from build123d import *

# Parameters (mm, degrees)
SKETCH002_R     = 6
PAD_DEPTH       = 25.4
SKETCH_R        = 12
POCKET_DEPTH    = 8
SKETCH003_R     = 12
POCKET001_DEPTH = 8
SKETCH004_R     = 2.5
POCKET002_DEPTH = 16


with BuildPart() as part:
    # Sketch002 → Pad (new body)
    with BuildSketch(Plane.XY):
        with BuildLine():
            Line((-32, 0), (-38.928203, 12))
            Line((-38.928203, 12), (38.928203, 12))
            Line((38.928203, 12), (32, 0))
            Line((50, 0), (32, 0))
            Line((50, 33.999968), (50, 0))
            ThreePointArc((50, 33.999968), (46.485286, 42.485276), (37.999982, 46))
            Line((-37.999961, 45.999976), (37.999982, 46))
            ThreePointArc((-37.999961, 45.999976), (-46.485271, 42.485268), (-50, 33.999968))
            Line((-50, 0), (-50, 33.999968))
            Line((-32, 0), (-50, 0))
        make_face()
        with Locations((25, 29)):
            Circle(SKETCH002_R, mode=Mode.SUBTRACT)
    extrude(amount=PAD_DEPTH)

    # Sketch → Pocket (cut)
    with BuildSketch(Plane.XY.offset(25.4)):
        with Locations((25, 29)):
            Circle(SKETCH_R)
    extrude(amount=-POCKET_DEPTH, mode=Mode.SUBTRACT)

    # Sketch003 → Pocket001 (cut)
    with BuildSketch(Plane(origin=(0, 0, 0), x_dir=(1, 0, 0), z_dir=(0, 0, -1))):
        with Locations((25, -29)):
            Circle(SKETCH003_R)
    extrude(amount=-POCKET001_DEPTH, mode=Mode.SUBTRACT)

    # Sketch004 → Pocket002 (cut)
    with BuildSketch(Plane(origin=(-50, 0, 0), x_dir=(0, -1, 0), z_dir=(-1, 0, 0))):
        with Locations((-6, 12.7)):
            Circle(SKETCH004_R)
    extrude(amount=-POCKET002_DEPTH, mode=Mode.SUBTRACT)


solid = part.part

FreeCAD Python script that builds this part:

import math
import FreeCAD as App
import Part
import Sketcher
Q = App.Units.Quantity

doc = App.newDocument("Part")
params = doc.addObject("Spreadsheet::Sheet", "Params")
for row, (alias, value) in enumerate([
    ("sketch1_diameter", "12 mm"),
    ("sketch1_radius", "12.000001 mm"),
    ("sketch1_width", "18 mm"),
    ("pad1_length", "25.4 mm"),
    ("sketch2_diameter", "24 mm"),
    ("pocket1_length", "8 mm"),
    ("sketch3_diameter", "24 mm"),
    ("pocket2_length", "8 mm"),
    ("sketch4_diameter", "5 mm"),
    ("pocket3_length", "16 mm"),
], start=1):
    params.set(f"A{row}", alias)
    params.set(f"B{row}", "=" + value)
    params.setAlias(f"B{row}", alias)

body = doc.addObject("PartDesign::Body", "Body")

# Sketch on XY plane
sketch1 = body.newObject("Sketcher::SketchObject", "Sketch")
sketch1.AttachmentSupport = (doc.getObject("XY_Plane"), [""])
sketch1.MapMode = "FlatFace"
sketch1.addGeometry([
    Part.LineSegment(App.Vector(-32, 0, 0), App.Vector(-38.928203, 12, 0)),  # 0
    Part.LineSegment(App.Vector(-38.928203, 12, 0), App.Vector(38.928203, 12, 0)),  # 1
    Part.LineSegment(App.Vector(38.928203, 12, 0), App.Vector(32, 0, 0)),  # 2
    Part.LineSegment(App.Vector(32, 0, 0), App.Vector(50, 0, 0)),  # 3
    Part.LineSegment(App.Vector(50, 0, 0), App.Vector(50, 33.999968, 0)),  # 4
    Part.ArcOfCircle(Part.Circle(App.Vector(37.999999, 33.999999, 0), App.Vector(0, 0, 1), 12.000001), math.radians(-0.000147), math.radians(90.00008)),  # 5
    Part.LineSegment(App.Vector(37.999982, 46, 0), App.Vector(-37.999961, 45.999976, 0)),  # 6
    Part.ArcOfCircle(Part.Circle(App.Vector(-38, 33.999976, 0), App.Vector(0, 0, 1), 12), math.radians(89.999812), math.radians(180.00004)),  # 7
    Part.LineSegment(App.Vector(-50, 33.999968, 0), App.Vector(-50, 0, 0)),  # 8
    Part.LineSegment(App.Vector(-50, 0, 0), App.Vector(-32, 0, 0)),  # 9
    Part.Circle(App.Vector(25, 29, 0), App.Vector(0, 0, 1), 6),  # 10
], False)
sketch1.addConstraint([
    Sketcher.Constraint("Coincident", 0, 2, 1, 1),
    Sketcher.Constraint("Coincident", 1, 2, 2, 1),
    Sketcher.Constraint("Coincident", 2, 2, 3, 1),
    Sketcher.Constraint("Coincident", 3, 2, 4, 1),
    Sketcher.Constraint("Coincident", 4, 2, 5, 1),
    Sketcher.Constraint("Tangent", 5, 2, 6, 1),
    Sketcher.Constraint("Coincident", 6, 2, 7, 1),
    Sketcher.Constraint("Tangent", 7, 2, 8, 1),
    Sketcher.Constraint("Coincident", 8, 2, 9, 1),
    Sketcher.Constraint("Coincident", 9, 2, 0, 1),
    Sketcher.Constraint("Horizontal", 1),
    Sketcher.Constraint("Horizontal", 3),
    Sketcher.Constraint("Vertical", 4),
    Sketcher.Constraint("Vertical", 8),
    Sketcher.Constraint("Horizontal", 9),
    Sketcher.Constraint("Equal", 5, 7),
    Sketcher.Constraint("Symmetric", 3, 2, 8, 2, -1, 1),
    Sketcher.Constraint("Symmetric", 2, 2, 9, 2, -2),
    Sketcher.Constraint("Horizontal", 4, 2, 7, 2),
    Sketcher.Constraint("Equal", 0, 2),
    Sketcher.Constraint("Diameter", 10, Q("12 mm")),
    Sketcher.Constraint("Radius", 5, Q("12.000001 mm")),
    Sketcher.Constraint("DistanceX", 3, 1, 3, 2, Q("18 mm")),
    Sketcher.Constraint("Angle", 0, Q("119.999999 deg")),
    Sketcher.Constraint("Angle", 6, Q("-179.999982 deg")),
    Sketcher.Constraint("DistanceX", -1, 1, 5, 3, Q("37.999999 mm")),
    Sketcher.Constraint("DistanceY", -1, 1, 5, 3, Q("33.999999 mm")),
    Sketcher.Constraint("DistanceX", -1, 1, 10, 3, Q("25 mm")),
    Sketcher.Constraint("DistanceY", -1, 1, 10, 3, Q("29 mm")),
    Sketcher.Constraint("DistanceY", -1, 1, 0, 2, Q("12 mm")),
    Sketcher.Constraint("DistanceX", 6, 2, -1, 1, Q("37.999961 mm")),
])
sketch1.setExpression("Constraints[20]", "Params.sketch1_diameter")
sketch1.setExpression("Constraints[21]", "Params.sketch1_radius")
sketch1.setExpression("Constraints[22]", "Params.sketch1_width")
pad1 = body.newObject("PartDesign::Pad", "Pad")
pad1.Profile = sketch1
pad1.setExpression("Length", "Params.pad1_length")

# Sketch on XY plane
sketch2 = body.newObject("Sketcher::SketchObject", "Sketch001")
sketch2.AttachmentSupport = (doc.getObject("XY_Plane"), [""])
sketch2.MapMode = "FlatFace"
sketch2.AttachmentOffset = App.Placement(App.Vector(0, 0, 25.4), App.Rotation())
sketch2.addGeometry(Part.Circle(App.Vector(25, 29, 0), App.Vector(0, 0, 1), 12), False)
sketch2.addConstraint([
    Sketcher.Constraint("Diameter", 0, Q("24 mm")),
    Sketcher.Constraint("DistanceX", -1, 1, 0, 3, Q("25 mm")),
    Sketcher.Constraint("DistanceY", -1, 1, 0, 3, Q("29 mm")),
])
sketch2.setExpression("Constraints[0]", "Params.sketch2_diameter")
pocket1 = body.newObject("PartDesign::Pocket", "Pocket")
pocket1.Profile = sketch2
pocket1.setExpression("Length", "Params.pocket1_length")

# Sketch on XY plane
sketch3 = body.newObject("Sketcher::SketchObject", "Sketch002")
sketch3.AttachmentSupport = (doc.getObject("XY_Plane"), [""])
sketch3.MapMode = "FlatFace"
sketch3.addGeometry(Part.Circle(App.Vector(25, 29, 0), App.Vector(0, 0, 1), 12), False)
sketch3.addConstraint([
    Sketcher.Constraint("Diameter", 0, Q("24 mm")),
    Sketcher.Constraint("DistanceX", -1, 1, 0, 3, Q("25 mm")),
    Sketcher.Constraint("DistanceY", -1, 1, 0, 3, Q("29 mm")),
])
sketch3.setExpression("Constraints[0]", "Params.sketch3_diameter")
pocket2 = body.newObject("PartDesign::Pocket", "Pocket001")
pocket2.Profile = sketch3
pocket2.setExpression("Length", "Params.pocket2_length")
pocket2.Reversed = True

# Sketch on YZ plane
sketch4 = body.newObject("Sketcher::SketchObject", "Sketch003")
sketch4.AttachmentSupport = (doc.getObject("YZ_Plane"), [""])
sketch4.MapMode = "FlatFace"
sketch4.AttachmentOffset = App.Placement(App.Vector(0, 0, -50), App.Rotation())
sketch4.addGeometry(Part.Circle(App.Vector(6, 12.7, 0), App.Vector(0, 0, 1), 2.5), False)
sketch4.addConstraint([
    Sketcher.Constraint("Diameter", 0, Q("5 mm")),
    Sketcher.Constraint("DistanceX", -1, 1, 0, 3, Q("6 mm")),
    Sketcher.Constraint("DistanceY", -1, 1, 0, 3, Q("12.7 mm")),
])
sketch4.setExpression("Constraints[0]", "Params.sketch4_diameter")
pocket3 = body.newObject("PartDesign::Pocket", "Pocket002")
pocket3.Profile = sketch4
pocket3.setExpression("Length", "Params.pocket3_length")
pocket3.Reversed = True

doc.recompute()
